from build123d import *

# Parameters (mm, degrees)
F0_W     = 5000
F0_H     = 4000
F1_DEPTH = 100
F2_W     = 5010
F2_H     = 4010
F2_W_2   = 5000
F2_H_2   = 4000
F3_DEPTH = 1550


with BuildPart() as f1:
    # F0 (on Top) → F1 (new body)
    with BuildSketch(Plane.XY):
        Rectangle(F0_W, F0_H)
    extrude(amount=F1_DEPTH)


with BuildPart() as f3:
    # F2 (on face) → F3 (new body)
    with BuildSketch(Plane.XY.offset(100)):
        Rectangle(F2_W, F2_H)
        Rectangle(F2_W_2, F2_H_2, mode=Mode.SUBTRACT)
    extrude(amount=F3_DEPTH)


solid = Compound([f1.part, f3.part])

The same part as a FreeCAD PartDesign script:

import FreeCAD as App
import Part
import Sketcher
Q = App.Units.Quantity


def add_polygon(sketch, points):
    """Adds a closed chain of lines whose ends are joined by coincident constraints."""
    first, n = sketch.GeometryCount, len(points)
    for a, b in zip(points, points[1:] + points[:1]):
        sketch.addGeometry(Part.LineSegment(App.Vector(*a, 0), App.Vector(*b, 0)), False)
    for i in range(n):
        sketch.addConstraint(Sketcher.Constraint("Coincident", first + i, 2, first + (i + 1) % n, 1))

doc = App.newDocument("Part")
body = doc.addObject("PartDesign::Body", "Body")

# Sketch on XY plane
sketch1 = body.newObject("Sketcher::SketchObject", "Sketch")
sketch1.AttachmentSupport = (doc.getObject("XY_Plane"), [""])
sketch1.MapMode = "FlatFace"
add_polygon(sketch1, [(-2500, 2000), (-2500, -2000), (2500, -2000), (2500, 2000)])  # lines 0-3
sketch1.addConstraint([
    Sketcher.Constraint("Vertical", 0),
    Sketcher.Constraint("Horizontal", 1),
    Sketcher.Constraint("Vertical", 2),
    Sketcher.Constraint("Horizontal", 3),
    Sketcher.Constraint("Symmetric", 0, 2, 2, 2, -1, 1),
    Sketcher.Constraint("DistanceX", 1, 1, 1, 2, Q("5000 mm")),
    Sketcher.Constraint("DistanceY", 0, 2, 0, 1, Q("4000 mm")),
])
pad1 = body.newObject("PartDesign::Pad", "Pad")
pad1.Profile = sketch1
pad1.Length = 100
body2 = doc.addObject("PartDesign::Body", "Body001")

# Sketch on XY plane
sketch2 = body2.newObject("Sketcher::SketchObject", "Sketch001")
sketch2.AttachmentSupport = (doc.getObject("XY_Plane001"), [""])
sketch2.MapMode = "FlatFace"
sketch2.AttachmentOffset = App.Placement(App.Vector(0, 0, 100), App.Rotation())
add_polygon(sketch2, [(-2505, 2005), (-2505, -2005), (2505, -2005), (2505, 2005)])  # lines 0-3
add_polygon(sketch2, [(2500, -2000), (-2500, -2000), (-2500, 2000), (2500, 2000)])  # lines 4-7
sketch2.addConstraint([
    Sketcher.Constraint("Vertical", 0),
    Sketcher.Constraint("Horizontal", 1),
    Sketcher.Constraint("Vertical", 2),
    Sketcher.Constraint("Horizontal", 3),
    Sketcher.Constraint("Horizontal", 4),
    Sketcher.Constraint("Vertical", 5),
    Sketcher.Constraint("Horizontal", 6),
    Sketcher.Constraint("Vertical", 7),
    Sketcher.Constraint("Symmetric", 0, 2, 2, 2, -1, 1),
    Sketcher.Constraint("Symmetric", 4, 2, 6, 2, -1, 1),
    Sketcher.Constraint("DistanceX", 1, 1, 1, 2, Q("5010 mm")),
    Sketcher.Constraint("DistanceX", 4, 2, 4, 1, Q("5000 mm")),
    Sketcher.Constraint("DistanceY", 0, 2, 0, 1, Q("4010 mm")),
    Sketcher.Constraint("DistanceY", 5, 1, 5, 2, Q("4000 mm")),
])
pad2 = body2.newObject("PartDesign::Pad", "Pad001")
pad2.Profile = sketch2
pad2.Length = 1550

doc.recompute()
